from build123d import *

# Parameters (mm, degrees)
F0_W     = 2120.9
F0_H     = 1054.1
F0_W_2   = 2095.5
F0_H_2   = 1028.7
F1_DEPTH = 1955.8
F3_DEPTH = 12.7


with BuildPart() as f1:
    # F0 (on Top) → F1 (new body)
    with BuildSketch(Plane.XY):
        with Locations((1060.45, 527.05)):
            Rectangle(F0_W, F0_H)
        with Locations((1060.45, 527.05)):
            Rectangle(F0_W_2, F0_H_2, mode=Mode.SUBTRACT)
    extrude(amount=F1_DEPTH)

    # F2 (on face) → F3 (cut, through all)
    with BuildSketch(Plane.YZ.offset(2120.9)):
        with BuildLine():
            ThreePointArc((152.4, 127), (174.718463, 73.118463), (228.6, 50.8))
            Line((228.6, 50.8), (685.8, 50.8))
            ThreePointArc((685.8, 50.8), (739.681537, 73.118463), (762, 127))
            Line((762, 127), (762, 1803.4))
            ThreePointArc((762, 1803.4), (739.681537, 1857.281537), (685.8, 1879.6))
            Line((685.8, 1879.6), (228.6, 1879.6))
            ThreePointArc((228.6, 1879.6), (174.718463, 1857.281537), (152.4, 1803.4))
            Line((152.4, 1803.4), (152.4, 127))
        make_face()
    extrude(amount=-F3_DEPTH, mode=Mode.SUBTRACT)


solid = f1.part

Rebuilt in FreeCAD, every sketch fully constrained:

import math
import FreeCAD as App
import Part
import Sketcher
Q = App.Units.Quantity


def add_polygon(sketch, points):
    """Adds a closed chain of lines whose ends are joined by coincident constraints."""
    first, n = sketch.GeometryCount, len(points)
    for a, b in zip(points, points[1:] + points[:1]):
        sketch.addGeometry(Part.LineSegment(App.Vector(*a, 0), App.Vector(*b, 0)), False)
    for i in range(n):
        sketch.addConstraint(Sketcher.Constraint("Coincident", first + i, 2, first + (i + 1) % n, 1))

doc = App.newDocument("Part")
body = doc.addObject("PartDesign::Body", "Body")

sketch1 = body.newObject("Sketcher::SketchObject", "Sketch")
sketch1.AttachmentSupport = (doc.getObject("XY_Plane"), [""])
sketch1.MapMode = "FlatFace"
add_polygon(sketch1, [(0, 1054.1), (0, 0), (2120.9, 0), (2120.9, 1054.1)])
add_polygon(sketch1, [(2108.2, 12.7), (12.7, 12.7), (12.7, 1041.4), (2108.2, 1041.4)])
sketch1.addConstraint([
    Sketcher.Constraint("Vertical", 0),
    Sketcher.Constraint("Horizontal", 1),
    Sketcher.Constraint("Vertical", 2),
    Sketcher.Constraint("Horizontal", 3),
    Sketcher.Constraint("Horizontal", 4),
    Sketcher.Constraint("Vertical", 5),
    Sketcher.Constraint("Horizontal", 6),
    Sketcher.Constraint("Vertical", 7),
    Sketcher.Constraint("Coincident", 0, 2, -1, 1),
    Sketcher.Constraint("DistanceX", 1, 1, 1, 2, Q("83.5 in")),
    Sketcher.Constraint("DistanceX", 4, 2, 4, 1, Q("82.5 in")),
    Sketcher.Constraint("DistanceY", 0, 2, 0, 1, Q("41.5 in")),
    Sketcher.Constraint("DistanceY", 5, 1, 5, 2, Q("40.5 in")),
    Sketcher.Constraint("DistanceY", -1, 1, 5, 2, Q("41 in")),
    Sketcher.Constraint("DistanceX", -1, 1, 6, 2, Q("83 in")),
])
pad1 = body.newObject("PartDesign::Pad", "Pad")
pad1.Profile = sketch1
pad1.Length = Q("77 in")

sketch2 = body.newObject("Sketcher::SketchObject", "Sketch001")
sketch2.AttachmentSupport = (doc.getObject("YZ_Plane"), [""])
sketch2.MapMode = "FlatFace"
sketch2.AttachmentOffset = App.Placement(App.Vector(0, 0, 83.5 * 25.4), App.Rotation())
sketch2.addGeometry([
    Part.ArcOfCircle(Part.Circle(App.Vector(228.599999, 126.999999, 0), App.Vector(0, 0, 1), 76.199999), math.radians(179.999999), math.radians(270.000001)),
    Part.LineSegment(App.Vector(228.6, 50.8, 0), App.Vector(685.8, 50.8, 0)),
    Part.ArcOfCircle(Part.Circle(App.Vector(685.800001, 126.999999, 0), App.Vector(0, 0, 1), 76.199999), math.radians(-90.000001), math.radians(0.000001)),
    Part.LineSegment(App.Vector(762, 127, 0), App.Vector(762, 1803.4, 0)),
    Part.ArcOfCircle(Part.Circle(App.Vector(685.800001, 1803.400001, 0), App.Vector(0, 0, 1), 76.199999), math.radians(-0.000001), math.radians(90.000001)),
    Part.LineSegment(App.Vector(685.8, 1879.6, 0), App.Vector(228.6, 1879.6, 0)),
    Part.ArcOfCircle(Part.Circle(App.Vector(228.599999, 1803.400001, 0), App.Vector(0, 0, 1), 76.199999), math.radians(89.999999), math.radians(180.000001)),
    Part.LineSegment(App.Vector(152.4, 1803.4, 0), App.Vector(152.4, 127, 0)),
], False)
sketch2.addConstraint([
    Sketcher.Constraint("Tangent", 0, 2, 1, 1),
    Sketcher.Constraint("Tangent", 1, 2, 2, 1),
    Sketcher.Constraint("Tangent", 2, 2, 3, 1),
    Sketcher.Constraint("Tangent", 3, 2, 4, 1),
    Sketcher.Constraint("Tangent", 4, 2, 5, 1),
    Sketcher.Constraint("Tangent", 5, 2, 6, 1),
    Sketcher.Constraint("Tangent", 6, 2, 7, 1),
    Sketcher.Constraint("Tangent", 7, 2, 0, 1),
    Sketcher.Constraint("Horizontal", 1),
    Sketcher.Constraint("Vertical", 3),
    Sketcher.Constraint("Horizontal", 5),
    Sketcher.Constraint("Vertical", 7),
    Sketcher.Constraint("Equal", 0, 2),
    Sketcher.Constraint("Equal", 2, 4),
    Sketcher.Constraint("Equal", 4, 6),
    Sketcher.Constraint("Radius", 0, Q("3 in")),
    Sketcher.Constraint("DistanceX", 1, 1, 1, 2, Q("18 in")),
    Sketcher.Constraint("DistanceY", 3, 1, 3, 2, Q("66 in")),
    Sketcher.Constraint("DistanceX", -1, 1, 0, 3, Q("9 in")),
    Sketcher.Constraint("DistanceY", -1, 1, 0, 3, Q("5 in")),
])
pocket1 = body.newObject("PartDesign::Pocket", "Pocket")
pocket1.Profile = sketch2
pocket1.Length = Q("0.5 in")

doc.recompute()
